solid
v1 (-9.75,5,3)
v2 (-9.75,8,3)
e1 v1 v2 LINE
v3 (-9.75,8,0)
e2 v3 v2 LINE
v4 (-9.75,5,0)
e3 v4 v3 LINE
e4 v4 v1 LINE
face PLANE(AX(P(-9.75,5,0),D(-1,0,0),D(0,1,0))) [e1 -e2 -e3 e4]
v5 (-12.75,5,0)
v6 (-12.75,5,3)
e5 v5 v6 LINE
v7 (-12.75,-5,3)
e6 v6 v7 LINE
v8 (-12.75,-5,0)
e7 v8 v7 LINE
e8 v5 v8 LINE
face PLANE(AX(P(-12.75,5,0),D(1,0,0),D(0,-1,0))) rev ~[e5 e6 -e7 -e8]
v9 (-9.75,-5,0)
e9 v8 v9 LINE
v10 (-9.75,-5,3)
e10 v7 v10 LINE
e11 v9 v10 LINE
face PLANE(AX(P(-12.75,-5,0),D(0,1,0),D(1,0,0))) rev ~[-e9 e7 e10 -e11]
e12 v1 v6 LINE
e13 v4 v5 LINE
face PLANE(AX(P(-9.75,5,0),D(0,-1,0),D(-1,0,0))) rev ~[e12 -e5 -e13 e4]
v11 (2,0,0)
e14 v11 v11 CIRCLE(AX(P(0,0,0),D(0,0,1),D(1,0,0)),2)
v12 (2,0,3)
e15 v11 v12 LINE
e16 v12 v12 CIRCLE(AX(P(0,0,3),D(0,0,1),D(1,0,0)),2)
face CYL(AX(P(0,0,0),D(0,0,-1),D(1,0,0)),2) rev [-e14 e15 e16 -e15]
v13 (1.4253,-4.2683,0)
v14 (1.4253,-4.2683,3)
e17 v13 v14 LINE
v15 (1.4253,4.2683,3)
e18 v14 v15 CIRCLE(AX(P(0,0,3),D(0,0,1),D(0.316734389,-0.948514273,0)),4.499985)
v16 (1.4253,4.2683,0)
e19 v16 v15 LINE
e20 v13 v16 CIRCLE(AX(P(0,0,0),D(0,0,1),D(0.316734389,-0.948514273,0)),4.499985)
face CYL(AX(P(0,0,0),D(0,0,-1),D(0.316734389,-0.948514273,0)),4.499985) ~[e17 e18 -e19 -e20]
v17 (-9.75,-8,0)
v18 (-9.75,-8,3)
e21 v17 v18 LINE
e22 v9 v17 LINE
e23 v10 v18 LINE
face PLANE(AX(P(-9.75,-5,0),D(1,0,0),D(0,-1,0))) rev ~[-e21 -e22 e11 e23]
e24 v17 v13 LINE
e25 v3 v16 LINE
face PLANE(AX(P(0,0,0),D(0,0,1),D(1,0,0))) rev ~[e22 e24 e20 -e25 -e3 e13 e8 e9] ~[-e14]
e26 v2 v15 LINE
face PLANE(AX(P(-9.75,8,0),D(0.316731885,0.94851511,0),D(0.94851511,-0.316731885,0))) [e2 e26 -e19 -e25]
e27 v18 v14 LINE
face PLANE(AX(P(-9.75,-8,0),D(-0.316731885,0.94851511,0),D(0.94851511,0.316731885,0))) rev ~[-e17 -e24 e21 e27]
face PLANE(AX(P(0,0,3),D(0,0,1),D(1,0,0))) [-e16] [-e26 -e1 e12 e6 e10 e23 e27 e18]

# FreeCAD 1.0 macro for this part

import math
import FreeCAD as App
import Part
import Sketcher
Q = App.Units.Quantity

doc = App.newDocument("Part")
body = doc.addObject("PartDesign::Body", "Body")

sketch1 = body.newObject("Sketcher::SketchObject", "Sketch")
sketch1.AttachmentSupport = (doc.getObject("XY_Plane"), [""])
sketch1.MapMode = "FlatFace"
sketch1.addGeometry([
    Part.LineSegment(App.Vector(-9.8, -8, 0), App.Vector(1.4, -4.3, 0)),
    Part.ArcOfCircle(Part.Circle(App.Vector(0, 0, 0), App.Vector(0, 0, 1), 4.5), math.radians(-72), math.radians(72)),
    Part.LineSegment(App.Vector(1.4, 4.3, 0), App.Vector(-9.8, 8, 0)),
    Part.LineSegment(App.Vector(-9.8, 8, 0), App.Vector(-9.8, 5, 0)),
    Part.LineSegment(App.Vector(-9.8, 5, 0), App.Vector(-12.8, 5, 0)),
    Part.LineSegment(App.Vector(-12.8, 5, 0), App.Vector(-12.8, -5, 0)),
    Part.LineSegment(App.Vector(-12.8, -5, 0), App.Vector(-9.8, -5, 0)),
    Part.LineSegment(App.Vector(-9.8, -5, 0), App.Vector(-9.8, -8, 0)),
    Part.Circle(App.Vector(0, 0, 0), App.Vector(0, 0, 1), 2),
], False)
sketch1.addConstraint([
    Sketcher.Constraint("Tangent", 0, 2, 1, 1),
    Sketcher.Constraint("Tangent", 1, 2, 2, 1),
    Sketcher.Constraint("Coincident", 2, 2, 3, 1),
    Sketcher.Constraint("Coincident", 3, 2, 4, 1),
    Sketcher.Constraint("Coincident", 4, 2, 5, 1),
    Sketcher.Constraint("Coincident", 5, 2, 6, 1),
    Sketcher.Constraint("Coincident", 6, 2, 7, 1),
    Sketcher.Constraint("Coincident", 7, 2, 0, 1),
    Sketcher.Constraint("Vertical", 3),
    Sketcher.Constraint("Horizontal", 4),
    Sketcher.Constraint("Vertical", 5),
    Sketcher.Constraint("Horizontal", 6),
    Sketcher.Constraint("Vertical", 7),
    Sketcher.Constraint("Coincident", 1, 3, -1, 1),
    Sketcher.Constraint("Coincident", 8, 3, -1, 1),
    Sketcher.Constraint("Symmetric", 3, 2, 6, 2, -1),
    Sketcher.Constraint("Vertical", 0, 2, 1, 2),
    Sketcher.Constraint("Equal", 6, 3),
    Sketcher.Constraint("Radius", 1, Q("4.5 mm")),
    Sketcher.Constraint("DistanceX", 4, 2, 4, 1, Q("3 mm")),
    Sketcher.Constraint("Diameter", 8, Q("4 mm")),
    Sketcher.Constraint("DistanceY", -1, 1, 2, 2, Q("8 mm")),
    Sketcher.Constraint("DistanceX", 2, 2, -1, 1, Q("9.75 mm")),
])
pad1 = body.newObject("PartDesign::Pad", "Pad")
pad1.Profile = sketch1
pad1.Length = 3

doc.recompute()
